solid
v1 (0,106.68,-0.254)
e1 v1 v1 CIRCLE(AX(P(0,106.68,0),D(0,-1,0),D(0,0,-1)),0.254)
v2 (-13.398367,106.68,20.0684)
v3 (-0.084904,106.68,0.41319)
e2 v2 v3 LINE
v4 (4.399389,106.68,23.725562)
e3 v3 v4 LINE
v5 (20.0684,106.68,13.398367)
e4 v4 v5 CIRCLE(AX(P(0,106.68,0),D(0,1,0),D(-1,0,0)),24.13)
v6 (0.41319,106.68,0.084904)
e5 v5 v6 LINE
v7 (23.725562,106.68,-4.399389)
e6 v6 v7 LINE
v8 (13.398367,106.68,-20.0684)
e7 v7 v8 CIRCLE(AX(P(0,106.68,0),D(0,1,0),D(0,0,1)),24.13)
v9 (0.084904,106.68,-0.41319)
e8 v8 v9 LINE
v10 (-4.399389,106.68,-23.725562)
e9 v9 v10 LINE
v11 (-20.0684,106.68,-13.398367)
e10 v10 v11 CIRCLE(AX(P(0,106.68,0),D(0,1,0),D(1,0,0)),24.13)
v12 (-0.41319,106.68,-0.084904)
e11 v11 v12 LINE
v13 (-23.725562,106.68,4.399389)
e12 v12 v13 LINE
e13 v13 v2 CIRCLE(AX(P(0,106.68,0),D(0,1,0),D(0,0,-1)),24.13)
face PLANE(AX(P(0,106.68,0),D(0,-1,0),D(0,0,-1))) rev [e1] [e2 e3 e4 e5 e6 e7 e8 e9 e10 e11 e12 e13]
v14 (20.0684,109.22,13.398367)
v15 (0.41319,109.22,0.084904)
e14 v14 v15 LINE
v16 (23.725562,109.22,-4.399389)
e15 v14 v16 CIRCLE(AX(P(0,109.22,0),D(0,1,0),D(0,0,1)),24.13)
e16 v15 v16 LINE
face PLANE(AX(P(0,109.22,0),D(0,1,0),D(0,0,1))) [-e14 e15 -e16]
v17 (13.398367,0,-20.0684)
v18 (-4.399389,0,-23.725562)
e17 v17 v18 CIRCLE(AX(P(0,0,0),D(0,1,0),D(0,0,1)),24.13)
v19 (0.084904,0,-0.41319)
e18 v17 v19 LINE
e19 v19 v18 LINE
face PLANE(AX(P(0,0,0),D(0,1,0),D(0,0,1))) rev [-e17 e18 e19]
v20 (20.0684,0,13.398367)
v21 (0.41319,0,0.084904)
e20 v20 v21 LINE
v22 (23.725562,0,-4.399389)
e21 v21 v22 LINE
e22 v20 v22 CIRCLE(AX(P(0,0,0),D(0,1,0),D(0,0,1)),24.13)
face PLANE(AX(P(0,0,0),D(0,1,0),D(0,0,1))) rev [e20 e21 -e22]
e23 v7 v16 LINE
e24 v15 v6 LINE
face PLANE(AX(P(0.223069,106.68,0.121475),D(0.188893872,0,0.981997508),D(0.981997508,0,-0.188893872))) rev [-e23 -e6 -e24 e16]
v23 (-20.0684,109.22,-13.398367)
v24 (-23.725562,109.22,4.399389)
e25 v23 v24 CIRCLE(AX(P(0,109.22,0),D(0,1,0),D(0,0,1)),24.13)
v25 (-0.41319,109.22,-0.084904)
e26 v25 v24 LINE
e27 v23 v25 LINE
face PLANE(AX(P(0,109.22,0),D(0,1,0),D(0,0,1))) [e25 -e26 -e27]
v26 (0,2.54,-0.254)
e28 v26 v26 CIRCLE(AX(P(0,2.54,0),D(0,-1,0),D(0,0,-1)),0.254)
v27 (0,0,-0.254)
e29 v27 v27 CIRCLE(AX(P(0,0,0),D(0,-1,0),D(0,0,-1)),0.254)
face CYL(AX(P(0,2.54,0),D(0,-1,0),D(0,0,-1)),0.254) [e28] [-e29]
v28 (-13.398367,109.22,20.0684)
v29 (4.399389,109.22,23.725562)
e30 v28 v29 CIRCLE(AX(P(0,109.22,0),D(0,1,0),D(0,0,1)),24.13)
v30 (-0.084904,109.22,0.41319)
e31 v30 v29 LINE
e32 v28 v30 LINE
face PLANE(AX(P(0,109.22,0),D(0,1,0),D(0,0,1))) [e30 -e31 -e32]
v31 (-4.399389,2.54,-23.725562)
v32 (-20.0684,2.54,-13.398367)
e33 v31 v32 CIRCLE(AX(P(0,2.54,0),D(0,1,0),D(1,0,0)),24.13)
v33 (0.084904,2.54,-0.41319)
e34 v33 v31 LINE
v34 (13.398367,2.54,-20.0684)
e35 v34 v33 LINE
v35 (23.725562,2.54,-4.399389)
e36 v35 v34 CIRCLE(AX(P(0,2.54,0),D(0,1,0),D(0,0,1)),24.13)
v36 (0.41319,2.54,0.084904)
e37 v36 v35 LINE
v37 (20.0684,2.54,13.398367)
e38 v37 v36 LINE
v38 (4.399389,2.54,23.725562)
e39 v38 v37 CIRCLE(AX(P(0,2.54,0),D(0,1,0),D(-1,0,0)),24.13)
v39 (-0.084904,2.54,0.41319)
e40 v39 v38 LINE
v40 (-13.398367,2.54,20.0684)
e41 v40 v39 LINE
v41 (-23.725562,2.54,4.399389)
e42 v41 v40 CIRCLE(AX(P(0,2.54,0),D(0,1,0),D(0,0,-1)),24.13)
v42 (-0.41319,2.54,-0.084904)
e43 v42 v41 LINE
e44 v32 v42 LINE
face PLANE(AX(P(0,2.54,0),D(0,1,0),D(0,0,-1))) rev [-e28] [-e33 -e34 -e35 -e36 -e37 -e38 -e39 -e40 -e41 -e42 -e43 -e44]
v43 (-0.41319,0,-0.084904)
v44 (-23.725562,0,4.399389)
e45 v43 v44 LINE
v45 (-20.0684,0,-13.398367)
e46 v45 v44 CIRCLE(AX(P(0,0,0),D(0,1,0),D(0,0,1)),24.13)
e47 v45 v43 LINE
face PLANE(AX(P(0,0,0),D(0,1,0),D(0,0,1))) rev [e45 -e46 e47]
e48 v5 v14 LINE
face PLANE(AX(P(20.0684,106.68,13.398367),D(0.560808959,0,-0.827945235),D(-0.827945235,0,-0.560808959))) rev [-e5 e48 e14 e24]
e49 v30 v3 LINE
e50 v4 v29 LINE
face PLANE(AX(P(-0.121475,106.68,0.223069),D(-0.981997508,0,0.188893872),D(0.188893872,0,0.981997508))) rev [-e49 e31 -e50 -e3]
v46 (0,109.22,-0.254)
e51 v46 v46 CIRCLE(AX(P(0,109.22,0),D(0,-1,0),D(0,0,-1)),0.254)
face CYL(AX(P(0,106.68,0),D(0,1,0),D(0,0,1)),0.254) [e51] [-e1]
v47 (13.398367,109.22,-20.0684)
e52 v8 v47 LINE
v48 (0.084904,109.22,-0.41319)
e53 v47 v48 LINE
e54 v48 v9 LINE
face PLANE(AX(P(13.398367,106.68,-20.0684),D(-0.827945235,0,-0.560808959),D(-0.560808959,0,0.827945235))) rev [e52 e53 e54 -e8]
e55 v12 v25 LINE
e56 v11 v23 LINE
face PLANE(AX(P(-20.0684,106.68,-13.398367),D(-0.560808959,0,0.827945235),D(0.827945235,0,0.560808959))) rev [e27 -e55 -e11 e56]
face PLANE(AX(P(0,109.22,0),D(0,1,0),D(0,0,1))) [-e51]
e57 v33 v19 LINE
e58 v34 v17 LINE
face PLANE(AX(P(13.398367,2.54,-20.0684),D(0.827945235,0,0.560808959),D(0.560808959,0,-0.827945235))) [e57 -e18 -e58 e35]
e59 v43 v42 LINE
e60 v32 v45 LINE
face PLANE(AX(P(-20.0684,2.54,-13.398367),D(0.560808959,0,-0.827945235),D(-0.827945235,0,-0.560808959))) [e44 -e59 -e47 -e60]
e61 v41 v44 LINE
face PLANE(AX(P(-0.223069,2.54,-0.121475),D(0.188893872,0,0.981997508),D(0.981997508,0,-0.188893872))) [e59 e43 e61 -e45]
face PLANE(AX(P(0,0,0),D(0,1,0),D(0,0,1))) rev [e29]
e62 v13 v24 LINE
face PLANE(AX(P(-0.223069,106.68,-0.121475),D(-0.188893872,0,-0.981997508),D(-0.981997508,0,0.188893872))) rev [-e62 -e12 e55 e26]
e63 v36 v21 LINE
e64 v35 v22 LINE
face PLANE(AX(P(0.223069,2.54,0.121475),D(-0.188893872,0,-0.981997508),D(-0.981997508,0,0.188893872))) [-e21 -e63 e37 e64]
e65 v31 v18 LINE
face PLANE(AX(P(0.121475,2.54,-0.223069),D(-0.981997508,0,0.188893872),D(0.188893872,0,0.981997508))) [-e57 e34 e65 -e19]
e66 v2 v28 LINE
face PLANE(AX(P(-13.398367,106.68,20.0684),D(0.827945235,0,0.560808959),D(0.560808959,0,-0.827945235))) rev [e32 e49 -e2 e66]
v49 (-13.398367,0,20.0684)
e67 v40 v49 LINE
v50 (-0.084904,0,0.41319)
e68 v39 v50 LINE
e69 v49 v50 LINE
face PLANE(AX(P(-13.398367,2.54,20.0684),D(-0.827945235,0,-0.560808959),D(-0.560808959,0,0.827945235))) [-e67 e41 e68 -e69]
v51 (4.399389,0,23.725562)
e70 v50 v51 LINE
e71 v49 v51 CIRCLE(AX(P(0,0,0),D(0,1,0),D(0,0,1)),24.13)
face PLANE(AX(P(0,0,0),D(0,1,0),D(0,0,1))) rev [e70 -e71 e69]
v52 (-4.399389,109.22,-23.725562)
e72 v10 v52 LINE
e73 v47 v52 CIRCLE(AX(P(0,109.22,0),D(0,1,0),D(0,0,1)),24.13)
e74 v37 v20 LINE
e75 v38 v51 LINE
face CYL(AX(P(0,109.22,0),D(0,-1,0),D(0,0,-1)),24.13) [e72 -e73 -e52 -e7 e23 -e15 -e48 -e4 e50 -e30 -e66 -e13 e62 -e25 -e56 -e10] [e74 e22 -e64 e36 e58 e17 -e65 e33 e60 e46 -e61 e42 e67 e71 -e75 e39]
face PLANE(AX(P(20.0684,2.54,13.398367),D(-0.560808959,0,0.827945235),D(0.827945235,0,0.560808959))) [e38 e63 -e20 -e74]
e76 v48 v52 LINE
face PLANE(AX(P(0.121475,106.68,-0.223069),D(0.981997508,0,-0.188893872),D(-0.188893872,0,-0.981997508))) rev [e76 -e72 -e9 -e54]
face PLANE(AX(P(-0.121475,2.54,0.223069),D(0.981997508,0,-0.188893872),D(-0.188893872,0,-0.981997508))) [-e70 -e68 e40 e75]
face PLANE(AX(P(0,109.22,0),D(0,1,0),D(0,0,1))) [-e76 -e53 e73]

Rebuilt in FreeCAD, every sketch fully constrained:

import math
import FreeCAD as App
import Part
import Sketcher
Q = App.Units.Quantity

doc = App.newDocument("Part")
params = doc.addObject("Spreadsheet::Sheet", "Params")
for row, (alias, value) in enumerate([
    ("sketch1_diameter", "1.9 in"),
    ("pad1_length", "4.3 in"),
    ("sketch2_radius", "0.01 in"),
    ("sketch2_radius2", "0.95 in"),
    ("pocket1_length", "0.1 in"),
    ("sketch3_radius", "0.95 in"),
    ("sketch3_radius2", "0.01 in"),
    ("pocket2_length", "0.1 in"),
    ("sketch4_radius", "0.95 in"),
    ("sketch4_radius2", "0.01 in"),
    ("pocket3_length", "0.1 in"),
    ("sketch5_radius", "0.95 in"),
    ("sketch5_radius2", "0.01 in"),
    ("pocket4_length", "0.1 in"),
], start=1):
    params.set(f"A{row}", alias)
    params.set(f"B{row}", "=" + value)
    params.setAlias(f"B{row}", alias)

body = doc.addObject("PartDesign::Body", "Body")

# Sketch on XZ plane
sketch1 = doc.addObject("Sketcher::SketchObject", "Sketch")
body.addObject(sketch1)
sketch1.AttachmentSupport = (doc.XZ_Plane, [""])
sketch1.MapMode = "FlatFace"
sketch1.addGeometry(Part.Circle(App.Vector(0, 0, 0), App.Vector(0, 0, 1), 24), False)
sketch1.addConstraint([
    Sketcher.Constraint("Coincident", 0, 3, -1, 1),
    Sketcher.Constraint("Diameter", 0, Q("1.9 in")),
])
sketch1.setExpression("Constraints[1]", "Params.sketch1_diameter")
pad1 = doc.addObject("PartDesign::Pad", "Pad")
body.addObject(pad1)
pad1.Profile = sketch1
pad1.setExpression("Length", "Params.pad1_length")
pad1.Reversed = True

# Sketch on XZ plane
sketch2 = doc.addObject("Sketcher::SketchObject", "Sketch001")
body.addObject(sketch2)
sketch2.AttachmentSupport = (doc.XZ_Plane, [""])
sketch2.MapMode = "FlatFace"
sketch2.AttachmentOffset = App.Placement(App.Vector(0, 0, -4.3 * 25.4), App.Rotation())
sketch2.addGeometry([
    Part.LineSegment(App.Vector(-13.4, 20.07, 0), App.Vector(0.02, 0.25, 0)),
    Part.ArcOfCircle(Part.Circle(App.Vector(0, 0, 0), App.Vector(0, 0, 1), 0.25), math.radians(85), math.radians(209)),
    Part.LineSegment(App.Vector(-0.22, -0.12, 0), App.Vector(-23.73, 4.4, 0)),
    Part.ArcOfCircle(Part.Circle(App.Vector(0, 0, 0), App.Vector(0, 0, 1), 24.13), math.radians(124), math.radians(169)),
], False)
sketch2.addConstraint([
    Sketcher.Constraint("Coincident", 0, 2, 1, 1),
    Sketcher.Constraint("Coincident", 1, 2, 2, 1),
    Sketcher.Constraint("Coincident", 2, 2, 3, 2),
    Sketcher.Constraint("Coincident", 3, 1, 0, 1),
    Sketcher.Constraint("Coincident", 1, 3, -1, 1),
    Sketcher.Constraint("Coincident", 3, 3, -1, 1),
    Sketcher.Constraint("Equal", 0, 2),
    Sketcher.Constraint("Radius", 1, Q("0.01 in")),
    Sketcher.Constraint("Radius", 3, Q("0.95 in")),
    Sketcher.Constraint("DistanceY", -1, 1, 3, 1, Q("20.0684 mm")),
    Sketcher.Constraint("DistanceX", -1, 1, 0, 2, Q("0.023672 mm")),
    Sketcher.Constraint("DistanceX", 1, 2, -1, 1, Q("0.223069 mm")),
])
sketch2.setExpression("Constraints[7]", "Params.sketch2_radius")
sketch2.setExpression("Constraints[8]", "Params.sketch2_radius2")
pocket1 = doc.addObject("PartDesign::Pocket", "Pocket")
body.addObject(pocket1)
pocket1.Profile = sketch2
pocket1.setExpression("Length", "Params.pocket1_length")
pocket1.Reversed = True
doc.recompute()

polarpattern = doc.addObject("PartDesign::PolarPattern", "PolarPattern")
body.addObject(polarpattern)
polarpattern.Originals = [pocket1]
polarpattern.Axis = (doc.Y_Axis, [""])
polarpattern.Angle = 360
polarpattern.Occurrences = 4
body.Tip = polarpattern
doc.recompute()

datumplane = doc.addObject("PartDesign::Plane", "DatumPlane")
body.addObject(datumplane)
datumplane.AttachmentSupport = (doc.XZ_Plane, [""])
datumplane.MapMode = "FlatFace"
datumplane.AttachmentOffset = App.Placement(App.Vector(0, 0, -2.15 * 25.4), App.Rotation())
mirrored = doc.addObject("PartDesign::Mirrored", "Mirrored")
body.addObject(mirrored)
mirrored.Originals = [pocket1]
mirrored.MirrorPlane = (datumplane, [""])
body.Tip = mirrored

# Sketch on XZ plane
sketch3 = doc.addObject("Sketcher::SketchObject", "Sketch002")
body.addObject(sketch3)
sketch3.AttachmentSupport = (doc.XZ_Plane, [""])
sketch3.MapMode = "FlatFace"
sketch3.addGeometry([
    Part.LineSegment(App.Vector(0.25, -0.02, 0), App.Vector(20.07, 13.4, 0)),
    Part.ArcOfCircle(Part.Circle(App.Vector(0, 0, 0), App.Vector(0, 0, 1), 24.13), math.radians(34), math.radians(79)),
    Part.LineSegment(App.Vector(4.4, 23.73, 0), App.Vector(-0.12, 0.22, 0)),
    Part.ArcOfCircle(Part.Circle(App.Vector(0, 0, 0), App.Vector(0, 0, 1), 0.25), math.radians(-5), math.radians(119)),
], False)
sketch3.addConstraint([
    Sketcher.Constraint("Coincident", 0, 2, 1, 1),
    Sketcher.Constraint("Coincident", 1, 2, 2, 1),
    Sketcher.Constraint("Coincident", 2, 2, 3, 2),
    Sketcher.Constraint("Coincident", 3, 1, 0, 1),
    Sketcher.Constraint("Coincident", 1, 3, -1, 1),
    Sketcher.Constraint("Coincident", 3, 3, -1, 1),
    Sketcher.Constraint("Equal", 0, 2),
    Sketcher.Constraint("Radius", 1, Q("0.95 in")),
    Sketcher.Constraint("Radius", 3, Q("0.01 in")),
    Sketcher.Constraint("DistanceX", -1, 1, 0, 2, Q("20.0684 mm")),
    Sketcher.Constraint("DistanceX", -1, 1, 1, 2, Q("4.399389 mm")),
    Sketcher.Constraint("DistanceY", -1, 1, 2, 2, Q("0.223069 mm")),
])
sketch3.setExpression("Constraints[7]", "Params.sketch3_radius")
sketch3.setExpression("Constraints[8]", "Params.sketch3_radius2")
pocket2 = doc.addObject("PartDesign::Pocket", "Pocket001")
body.addObject(pocket2)
pocket2.Profile = sketch3
pocket2.setExpression("Length", "Params.pocket2_length")

# Sketch on XZ plane
sketch4 = doc.addObject("Sketcher::SketchObject", "Sketch003")
body.addObject(sketch4)
sketch4.AttachmentSupport = (doc.XZ_Plane, [""])
sketch4.MapMode = "FlatFace"
sketch4.addGeometry([
    Part.LineSegment(App.Vector(-0.02, -0.25, 0), App.Vector(13.4, -20.07, 0)),
    Part.ArcOfCircle(Part.Circle(App.Vector(0, 0, 0), App.Vector(0, 0, 1), 24.13), math.radians(-56), math.radians(-11)),
    Part.LineSegment(App.Vector(23.73, -4.4, 0), App.Vector(0.22, 0.12, 0)),
    Part.ArcOfCircle(Part.Circle(App.Vector(0, 0, 0), App.Vector(0, 0, 1), 0.25), math.radians(-95), math.radians(29)),
], False)
sketch4.addConstraint([
    Sketcher.Constraint("Coincident", 0, 2, 1, 1),
    Sketcher.Constraint("Coincident", 1, 2, 2, 1),
    Sketcher.Constraint("Coincident", 2, 2, 3, 2),
    Sketcher.Constraint("Coincident", 3, 1, 0, 1),
    Sketcher.Constraint("Coincident", 1, 3, -1, 1),
    Sketcher.Constraint("Coincident", 3, 3, -1, 1),
    Sketcher.Constraint("Equal", 0, 2),
    Sketcher.Constraint("Radius", 1, Q("0.95 in")),
    Sketcher.Constraint("Radius", 3, Q("0.01 in")),
    Sketcher.Constraint("DistanceY", 0, 2, -1, 1, Q("20.0684 mm")),
    Sketcher.Constraint("DistanceX", -1, 1, 1, 2, Q("23.725562 mm")),
    Sketcher.Constraint("DistanceX", -1, 1, 2, 2, Q("0.223069 mm")),
])
sketch4.setExpression("Constraints[7]", "Params.sketch4_radius")
sketch4.setExpression("Constraints[8]", "Params.sketch4_radius2")
pocket3 = doc.addObject("PartDesign::Pocket", "Pocket002")
body.addObject(pocket3)
pocket3.Profile = sketch4
pocket3.setExpression("Length", "Params.pocket3_length")

# Sketch on XZ plane
sketch5 = doc.addObject("Sketcher::SketchObject", "Sketch004")
body.addObject(sketch5)
sketch5.AttachmentSupport = (doc.XZ_Plane, [""])
sketch5.MapMode = "FlatFace"
sketch5.addGeometry([
    Part.LineSegment(App.Vector(-0.25, 0.02, 0), App.Vector(-20.07, -13.4, 0)),
    Part.ArcOfCircle(Part.Circle(App.Vector(0, 0, 0), App.Vector(0, 0, 1), 24.13), math.radians(-146), math.radians(-101)),
    Part.LineSegment(App.Vector(-4.4, -23.73, 0), App.Vector(0.12, -0.22, 0)),
    Part.ArcOfCircle(Part.Circle(App.Vector(0, 0, 0), App.Vector(0, 0, 1), 0.25), math.radians(175), math.radians(299)),
], False)
sketch5.addConstraint([
    Sketcher.Constraint("Coincident", 0, 2, 1, 1),
    Sketcher.Constraint("Coincident", 1, 2, 2, 1),
    Sketcher.Constraint("Coincident", 2, 2, 3, 2),
    Sketcher.Constraint("Coincident", 3, 1, 0, 1),
    Sketcher.Constraint("Coincident", 1, 3, -1, 1),
    Sketcher.Constraint("Coincident", 3, 3, -1, 1),
    Sketcher.Constraint("Equal", 0, 2),
    Sketcher.Constraint("Radius", 1, Q("0.95 in")),
    Sketcher.Constraint("Radius", 3, Q("0.01 in")),
    Sketcher.Constraint("DistanceX", 0, 2, -1, 1, Q("20.0684 mm")),
    Sketcher.Constraint("DistanceX", 1, 2, -1, 1, Q("4.399389 mm")),
    Sketcher.Constraint("DistanceY", 2, 2, -1, 1, Q("0.223069 mm")),
])
sketch5.setExpression("Constraints[7]", "Params.sketch5_radius")
sketch5.setExpression("Constraints[8]", "Params.sketch5_radius2")
pocket4 = doc.addObject("PartDesign::Pocket", "Pocket003")
body.addObject(pocket4)
pocket4.Profile = sketch5
pocket4.setExpression("Length", "Params.pocket4_length")

doc.recompute()
